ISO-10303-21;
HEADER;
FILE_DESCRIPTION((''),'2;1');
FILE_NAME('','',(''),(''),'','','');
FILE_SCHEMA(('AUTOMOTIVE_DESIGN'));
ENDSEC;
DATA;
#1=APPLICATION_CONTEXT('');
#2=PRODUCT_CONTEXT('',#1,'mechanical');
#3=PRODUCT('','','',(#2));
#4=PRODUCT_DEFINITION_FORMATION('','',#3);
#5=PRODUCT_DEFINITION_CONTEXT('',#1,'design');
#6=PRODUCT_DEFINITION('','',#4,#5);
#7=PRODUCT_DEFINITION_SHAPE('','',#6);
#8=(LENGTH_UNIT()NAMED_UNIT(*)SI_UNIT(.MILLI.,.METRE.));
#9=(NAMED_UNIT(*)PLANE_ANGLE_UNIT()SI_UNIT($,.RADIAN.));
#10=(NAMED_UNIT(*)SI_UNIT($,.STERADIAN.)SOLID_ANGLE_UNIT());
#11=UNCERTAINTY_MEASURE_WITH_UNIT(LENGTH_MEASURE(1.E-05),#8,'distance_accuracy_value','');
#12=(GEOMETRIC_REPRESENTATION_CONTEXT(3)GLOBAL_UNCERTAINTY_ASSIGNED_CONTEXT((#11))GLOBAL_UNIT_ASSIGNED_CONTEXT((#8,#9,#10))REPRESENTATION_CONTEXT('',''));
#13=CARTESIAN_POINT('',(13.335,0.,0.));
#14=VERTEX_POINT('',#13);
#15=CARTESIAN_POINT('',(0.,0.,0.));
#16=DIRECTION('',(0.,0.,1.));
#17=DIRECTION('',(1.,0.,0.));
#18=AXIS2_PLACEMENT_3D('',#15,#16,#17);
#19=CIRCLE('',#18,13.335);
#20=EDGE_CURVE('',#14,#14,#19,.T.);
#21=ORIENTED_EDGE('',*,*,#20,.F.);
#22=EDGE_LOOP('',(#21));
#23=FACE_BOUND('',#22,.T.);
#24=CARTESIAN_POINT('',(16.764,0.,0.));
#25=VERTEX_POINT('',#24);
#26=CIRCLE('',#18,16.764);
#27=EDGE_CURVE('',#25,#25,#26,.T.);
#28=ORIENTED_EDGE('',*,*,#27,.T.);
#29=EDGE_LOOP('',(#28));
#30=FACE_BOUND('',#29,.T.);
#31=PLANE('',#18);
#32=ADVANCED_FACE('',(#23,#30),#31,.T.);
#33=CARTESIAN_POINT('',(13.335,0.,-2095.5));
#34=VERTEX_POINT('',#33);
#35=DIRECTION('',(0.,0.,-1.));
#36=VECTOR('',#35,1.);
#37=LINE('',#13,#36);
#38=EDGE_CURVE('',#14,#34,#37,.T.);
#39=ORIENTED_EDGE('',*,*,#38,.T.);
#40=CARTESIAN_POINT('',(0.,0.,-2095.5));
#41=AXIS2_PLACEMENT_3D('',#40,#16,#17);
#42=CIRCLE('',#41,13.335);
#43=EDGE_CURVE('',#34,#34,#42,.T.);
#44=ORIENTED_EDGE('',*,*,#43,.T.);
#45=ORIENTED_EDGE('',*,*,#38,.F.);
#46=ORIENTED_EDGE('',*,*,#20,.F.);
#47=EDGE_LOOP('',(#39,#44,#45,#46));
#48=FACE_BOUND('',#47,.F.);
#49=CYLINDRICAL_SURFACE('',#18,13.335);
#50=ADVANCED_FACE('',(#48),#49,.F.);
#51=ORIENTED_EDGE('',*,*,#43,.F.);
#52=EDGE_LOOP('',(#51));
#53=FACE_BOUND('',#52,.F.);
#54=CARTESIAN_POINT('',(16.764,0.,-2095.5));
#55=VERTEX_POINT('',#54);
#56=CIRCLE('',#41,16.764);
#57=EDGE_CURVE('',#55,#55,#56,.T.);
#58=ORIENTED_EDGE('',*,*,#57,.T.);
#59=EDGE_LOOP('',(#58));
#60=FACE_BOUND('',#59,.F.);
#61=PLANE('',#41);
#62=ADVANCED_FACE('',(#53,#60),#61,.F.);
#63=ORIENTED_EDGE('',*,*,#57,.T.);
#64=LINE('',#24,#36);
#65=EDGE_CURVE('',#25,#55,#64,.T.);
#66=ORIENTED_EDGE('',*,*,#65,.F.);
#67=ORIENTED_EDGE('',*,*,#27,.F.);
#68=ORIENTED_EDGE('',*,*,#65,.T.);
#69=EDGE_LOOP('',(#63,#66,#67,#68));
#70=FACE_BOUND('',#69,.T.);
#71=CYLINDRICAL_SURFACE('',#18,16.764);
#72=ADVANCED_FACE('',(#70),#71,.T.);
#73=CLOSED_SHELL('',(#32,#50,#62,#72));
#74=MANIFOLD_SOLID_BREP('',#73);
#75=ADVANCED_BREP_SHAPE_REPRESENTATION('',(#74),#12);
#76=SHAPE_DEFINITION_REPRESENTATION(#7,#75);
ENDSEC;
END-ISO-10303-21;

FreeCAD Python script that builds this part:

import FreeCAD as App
import Part
import Sketcher

V = App.Vector
Q = App.Units.Quantity

doc = App.newDocument("Part")
body = doc.addObject("PartDesign::Body", "Body")

# Sketch on XY plane
sketch1 = body.newObject("Sketcher::SketchObject", "Sketch")
sketch1.AttachmentSupport = (doc.getObject("XY_Plane"), [""])
sketch1.MapMode = "FlatFace"
sketch1.addGeometry(Part.Circle(V(0, 0, 0), V(0, 0, 1), 17), False)
sketch1.addGeometry(Part.Circle(V(0, 0, 0), V(0, 0, 1), 13), False)
sketch1.addConstraint(Sketcher.Constraint("Coincident", 0, 3, -1, 1))
sketch1.addConstraint(Sketcher.Constraint("Coincident", 1, 3, -1, 1))
sketch1.addConstraint(Sketcher.Constraint("Diameter", 0, Q("1.32 in")))
sketch1.addConstraint(Sketcher.Constraint("Diameter", 1, Q("1.05 in")))
pad1 = body.newObject("PartDesign::Pad", "Pad")
pad1.Profile = sketch1
pad1.Length = Q("82.5 in")
pad1.Reversed = True

doc.recompute()
